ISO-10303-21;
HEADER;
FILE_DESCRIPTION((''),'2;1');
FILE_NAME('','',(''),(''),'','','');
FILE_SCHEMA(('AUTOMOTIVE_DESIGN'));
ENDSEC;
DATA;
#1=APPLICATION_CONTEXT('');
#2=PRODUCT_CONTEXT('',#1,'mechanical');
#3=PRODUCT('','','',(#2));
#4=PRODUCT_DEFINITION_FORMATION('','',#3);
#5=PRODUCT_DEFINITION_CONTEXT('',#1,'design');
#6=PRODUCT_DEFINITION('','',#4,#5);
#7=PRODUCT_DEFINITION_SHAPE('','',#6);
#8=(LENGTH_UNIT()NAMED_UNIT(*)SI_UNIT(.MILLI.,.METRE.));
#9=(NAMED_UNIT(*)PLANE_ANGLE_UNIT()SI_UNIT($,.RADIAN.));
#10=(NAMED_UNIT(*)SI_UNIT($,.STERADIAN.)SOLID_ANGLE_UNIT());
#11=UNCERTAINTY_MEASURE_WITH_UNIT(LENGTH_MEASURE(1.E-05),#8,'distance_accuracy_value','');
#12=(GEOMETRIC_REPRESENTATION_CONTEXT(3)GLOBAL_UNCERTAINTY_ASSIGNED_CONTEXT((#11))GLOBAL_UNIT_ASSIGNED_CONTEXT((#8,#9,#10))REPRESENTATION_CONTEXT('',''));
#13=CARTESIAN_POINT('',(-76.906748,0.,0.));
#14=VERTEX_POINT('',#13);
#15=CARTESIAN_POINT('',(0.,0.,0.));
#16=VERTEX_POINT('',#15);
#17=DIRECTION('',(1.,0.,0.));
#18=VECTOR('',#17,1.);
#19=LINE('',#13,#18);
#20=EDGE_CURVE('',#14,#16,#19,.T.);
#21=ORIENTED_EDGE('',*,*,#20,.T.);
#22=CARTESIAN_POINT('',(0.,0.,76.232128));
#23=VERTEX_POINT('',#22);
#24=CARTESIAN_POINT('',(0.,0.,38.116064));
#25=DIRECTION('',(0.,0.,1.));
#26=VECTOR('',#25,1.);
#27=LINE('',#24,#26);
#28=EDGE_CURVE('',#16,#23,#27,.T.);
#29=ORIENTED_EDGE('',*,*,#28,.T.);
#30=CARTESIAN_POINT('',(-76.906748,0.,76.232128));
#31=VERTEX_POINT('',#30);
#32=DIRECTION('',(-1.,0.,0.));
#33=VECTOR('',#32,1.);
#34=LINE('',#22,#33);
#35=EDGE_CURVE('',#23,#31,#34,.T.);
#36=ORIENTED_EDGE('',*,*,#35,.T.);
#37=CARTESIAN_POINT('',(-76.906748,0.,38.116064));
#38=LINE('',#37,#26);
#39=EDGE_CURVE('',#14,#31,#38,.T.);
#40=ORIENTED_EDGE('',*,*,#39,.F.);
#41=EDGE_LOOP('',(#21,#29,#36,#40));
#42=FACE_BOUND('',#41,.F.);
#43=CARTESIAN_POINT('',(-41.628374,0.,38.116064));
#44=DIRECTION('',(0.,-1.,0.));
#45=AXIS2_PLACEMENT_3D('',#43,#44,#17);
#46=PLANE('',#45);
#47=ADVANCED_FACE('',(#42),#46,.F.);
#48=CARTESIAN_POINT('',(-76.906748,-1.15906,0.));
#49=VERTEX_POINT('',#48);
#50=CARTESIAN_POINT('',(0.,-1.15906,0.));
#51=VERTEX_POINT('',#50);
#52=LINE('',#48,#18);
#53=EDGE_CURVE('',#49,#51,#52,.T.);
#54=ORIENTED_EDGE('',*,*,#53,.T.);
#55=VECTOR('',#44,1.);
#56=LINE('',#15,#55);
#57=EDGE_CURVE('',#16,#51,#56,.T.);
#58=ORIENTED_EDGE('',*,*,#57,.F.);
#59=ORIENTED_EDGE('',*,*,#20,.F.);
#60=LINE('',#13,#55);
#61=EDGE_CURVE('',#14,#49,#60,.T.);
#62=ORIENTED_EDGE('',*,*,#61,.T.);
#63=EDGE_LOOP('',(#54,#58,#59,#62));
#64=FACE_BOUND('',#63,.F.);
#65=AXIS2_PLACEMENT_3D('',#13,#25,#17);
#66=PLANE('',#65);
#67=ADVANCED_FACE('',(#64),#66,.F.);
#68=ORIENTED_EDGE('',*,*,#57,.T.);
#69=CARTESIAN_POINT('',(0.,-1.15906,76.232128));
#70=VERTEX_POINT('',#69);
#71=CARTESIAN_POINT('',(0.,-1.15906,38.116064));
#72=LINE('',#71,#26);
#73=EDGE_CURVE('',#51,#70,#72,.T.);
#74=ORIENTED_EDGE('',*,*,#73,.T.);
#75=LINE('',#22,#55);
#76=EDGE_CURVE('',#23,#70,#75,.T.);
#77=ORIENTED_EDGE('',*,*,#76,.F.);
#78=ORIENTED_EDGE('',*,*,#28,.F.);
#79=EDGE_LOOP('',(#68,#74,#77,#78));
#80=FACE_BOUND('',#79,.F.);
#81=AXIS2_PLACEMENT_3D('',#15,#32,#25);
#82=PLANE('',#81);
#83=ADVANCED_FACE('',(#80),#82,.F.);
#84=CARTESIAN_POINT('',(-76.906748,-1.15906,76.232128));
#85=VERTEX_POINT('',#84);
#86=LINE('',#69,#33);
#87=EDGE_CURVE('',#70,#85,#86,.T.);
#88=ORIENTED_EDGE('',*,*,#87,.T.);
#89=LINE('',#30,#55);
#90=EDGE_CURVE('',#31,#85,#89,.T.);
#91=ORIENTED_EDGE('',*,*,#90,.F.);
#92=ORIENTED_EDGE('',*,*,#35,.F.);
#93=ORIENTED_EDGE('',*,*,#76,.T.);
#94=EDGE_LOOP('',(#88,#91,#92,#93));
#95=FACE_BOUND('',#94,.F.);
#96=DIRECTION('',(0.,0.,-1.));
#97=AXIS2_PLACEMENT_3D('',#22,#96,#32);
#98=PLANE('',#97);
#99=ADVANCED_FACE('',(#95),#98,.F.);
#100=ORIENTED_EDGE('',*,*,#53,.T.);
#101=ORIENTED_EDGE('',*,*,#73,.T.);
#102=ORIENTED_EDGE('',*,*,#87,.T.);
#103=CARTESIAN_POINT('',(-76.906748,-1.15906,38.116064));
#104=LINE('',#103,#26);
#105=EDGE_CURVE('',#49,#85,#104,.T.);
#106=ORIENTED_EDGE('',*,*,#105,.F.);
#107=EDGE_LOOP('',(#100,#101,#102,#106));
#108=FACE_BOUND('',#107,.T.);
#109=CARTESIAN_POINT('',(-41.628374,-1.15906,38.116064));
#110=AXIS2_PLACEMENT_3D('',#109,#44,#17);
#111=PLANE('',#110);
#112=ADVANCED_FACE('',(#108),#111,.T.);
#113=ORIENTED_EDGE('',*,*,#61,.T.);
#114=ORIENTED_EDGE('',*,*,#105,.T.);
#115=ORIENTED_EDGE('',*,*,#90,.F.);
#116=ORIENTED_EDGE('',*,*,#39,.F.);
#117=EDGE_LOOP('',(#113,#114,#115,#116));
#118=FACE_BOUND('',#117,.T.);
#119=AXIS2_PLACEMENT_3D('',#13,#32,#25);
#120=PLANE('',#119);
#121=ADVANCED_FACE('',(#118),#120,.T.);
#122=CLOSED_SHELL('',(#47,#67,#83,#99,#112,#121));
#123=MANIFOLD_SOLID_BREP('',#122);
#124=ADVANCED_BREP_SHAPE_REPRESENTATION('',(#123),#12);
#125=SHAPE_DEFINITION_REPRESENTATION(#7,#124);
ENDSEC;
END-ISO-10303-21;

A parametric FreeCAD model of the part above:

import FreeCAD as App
import Part
import Sketcher

doc = App.newDocument("Part")
body = doc.addObject("PartDesign::Body", "Body")

# Sketch on XZ plane
sketch1 = body.newObject("Sketcher::SketchObject", "Sketch")
sketch1.AttachmentSupport = (doc.getObject("XZ_Plane"), [""])
sketch1.MapMode = "FlatFace"
sketch1.addGeometry([
    Part.LineSegment(App.Vector(-76.906748, 76.232128, 0), App.Vector(-76.906748, 0, 0)),
    Part.LineSegment(App.Vector(-76.906748, 0, 0), App.Vector(0, 0, 0)),
    Part.LineSegment(App.Vector(0, 0, 0), App.Vector(0, 76.232128, 0)),
    Part.LineSegment(App.Vector(0, 76.232128, 0), App.Vector(-76.906748, 76.232128, 0)),
], False)
sketch1.addConstraint([
    Sketcher.Constraint("Coincident", 0, 2, 1, 1),
    Sketcher.Constraint("Coincident", 1, 2, 2, 1),
    Sketcher.Constraint("Coincident", 2, 2, 3, 1),
    Sketcher.Constraint("Coincident", 3, 2, 0, 1),
    Sketcher.Constraint("Vertical", 0),
    Sketcher.Constraint("Horizontal", 1),
    Sketcher.Constraint("Vertical", 2),
    Sketcher.Constraint("Horizontal", 3),
    Sketcher.Constraint("Coincident", 1, 2, -1, 1),
    Sketcher.Constraint("DistanceY", 0, 2, 0, 1, 76.232128),
    Sketcher.Constraint("DistanceX", 1, 1, 1, 2, 76.906748),
])
pad1 = body.newObject("PartDesign::Pad", "Pad")
pad1.Profile = sketch1
pad1.Length = 1.15906

doc.recompute()
